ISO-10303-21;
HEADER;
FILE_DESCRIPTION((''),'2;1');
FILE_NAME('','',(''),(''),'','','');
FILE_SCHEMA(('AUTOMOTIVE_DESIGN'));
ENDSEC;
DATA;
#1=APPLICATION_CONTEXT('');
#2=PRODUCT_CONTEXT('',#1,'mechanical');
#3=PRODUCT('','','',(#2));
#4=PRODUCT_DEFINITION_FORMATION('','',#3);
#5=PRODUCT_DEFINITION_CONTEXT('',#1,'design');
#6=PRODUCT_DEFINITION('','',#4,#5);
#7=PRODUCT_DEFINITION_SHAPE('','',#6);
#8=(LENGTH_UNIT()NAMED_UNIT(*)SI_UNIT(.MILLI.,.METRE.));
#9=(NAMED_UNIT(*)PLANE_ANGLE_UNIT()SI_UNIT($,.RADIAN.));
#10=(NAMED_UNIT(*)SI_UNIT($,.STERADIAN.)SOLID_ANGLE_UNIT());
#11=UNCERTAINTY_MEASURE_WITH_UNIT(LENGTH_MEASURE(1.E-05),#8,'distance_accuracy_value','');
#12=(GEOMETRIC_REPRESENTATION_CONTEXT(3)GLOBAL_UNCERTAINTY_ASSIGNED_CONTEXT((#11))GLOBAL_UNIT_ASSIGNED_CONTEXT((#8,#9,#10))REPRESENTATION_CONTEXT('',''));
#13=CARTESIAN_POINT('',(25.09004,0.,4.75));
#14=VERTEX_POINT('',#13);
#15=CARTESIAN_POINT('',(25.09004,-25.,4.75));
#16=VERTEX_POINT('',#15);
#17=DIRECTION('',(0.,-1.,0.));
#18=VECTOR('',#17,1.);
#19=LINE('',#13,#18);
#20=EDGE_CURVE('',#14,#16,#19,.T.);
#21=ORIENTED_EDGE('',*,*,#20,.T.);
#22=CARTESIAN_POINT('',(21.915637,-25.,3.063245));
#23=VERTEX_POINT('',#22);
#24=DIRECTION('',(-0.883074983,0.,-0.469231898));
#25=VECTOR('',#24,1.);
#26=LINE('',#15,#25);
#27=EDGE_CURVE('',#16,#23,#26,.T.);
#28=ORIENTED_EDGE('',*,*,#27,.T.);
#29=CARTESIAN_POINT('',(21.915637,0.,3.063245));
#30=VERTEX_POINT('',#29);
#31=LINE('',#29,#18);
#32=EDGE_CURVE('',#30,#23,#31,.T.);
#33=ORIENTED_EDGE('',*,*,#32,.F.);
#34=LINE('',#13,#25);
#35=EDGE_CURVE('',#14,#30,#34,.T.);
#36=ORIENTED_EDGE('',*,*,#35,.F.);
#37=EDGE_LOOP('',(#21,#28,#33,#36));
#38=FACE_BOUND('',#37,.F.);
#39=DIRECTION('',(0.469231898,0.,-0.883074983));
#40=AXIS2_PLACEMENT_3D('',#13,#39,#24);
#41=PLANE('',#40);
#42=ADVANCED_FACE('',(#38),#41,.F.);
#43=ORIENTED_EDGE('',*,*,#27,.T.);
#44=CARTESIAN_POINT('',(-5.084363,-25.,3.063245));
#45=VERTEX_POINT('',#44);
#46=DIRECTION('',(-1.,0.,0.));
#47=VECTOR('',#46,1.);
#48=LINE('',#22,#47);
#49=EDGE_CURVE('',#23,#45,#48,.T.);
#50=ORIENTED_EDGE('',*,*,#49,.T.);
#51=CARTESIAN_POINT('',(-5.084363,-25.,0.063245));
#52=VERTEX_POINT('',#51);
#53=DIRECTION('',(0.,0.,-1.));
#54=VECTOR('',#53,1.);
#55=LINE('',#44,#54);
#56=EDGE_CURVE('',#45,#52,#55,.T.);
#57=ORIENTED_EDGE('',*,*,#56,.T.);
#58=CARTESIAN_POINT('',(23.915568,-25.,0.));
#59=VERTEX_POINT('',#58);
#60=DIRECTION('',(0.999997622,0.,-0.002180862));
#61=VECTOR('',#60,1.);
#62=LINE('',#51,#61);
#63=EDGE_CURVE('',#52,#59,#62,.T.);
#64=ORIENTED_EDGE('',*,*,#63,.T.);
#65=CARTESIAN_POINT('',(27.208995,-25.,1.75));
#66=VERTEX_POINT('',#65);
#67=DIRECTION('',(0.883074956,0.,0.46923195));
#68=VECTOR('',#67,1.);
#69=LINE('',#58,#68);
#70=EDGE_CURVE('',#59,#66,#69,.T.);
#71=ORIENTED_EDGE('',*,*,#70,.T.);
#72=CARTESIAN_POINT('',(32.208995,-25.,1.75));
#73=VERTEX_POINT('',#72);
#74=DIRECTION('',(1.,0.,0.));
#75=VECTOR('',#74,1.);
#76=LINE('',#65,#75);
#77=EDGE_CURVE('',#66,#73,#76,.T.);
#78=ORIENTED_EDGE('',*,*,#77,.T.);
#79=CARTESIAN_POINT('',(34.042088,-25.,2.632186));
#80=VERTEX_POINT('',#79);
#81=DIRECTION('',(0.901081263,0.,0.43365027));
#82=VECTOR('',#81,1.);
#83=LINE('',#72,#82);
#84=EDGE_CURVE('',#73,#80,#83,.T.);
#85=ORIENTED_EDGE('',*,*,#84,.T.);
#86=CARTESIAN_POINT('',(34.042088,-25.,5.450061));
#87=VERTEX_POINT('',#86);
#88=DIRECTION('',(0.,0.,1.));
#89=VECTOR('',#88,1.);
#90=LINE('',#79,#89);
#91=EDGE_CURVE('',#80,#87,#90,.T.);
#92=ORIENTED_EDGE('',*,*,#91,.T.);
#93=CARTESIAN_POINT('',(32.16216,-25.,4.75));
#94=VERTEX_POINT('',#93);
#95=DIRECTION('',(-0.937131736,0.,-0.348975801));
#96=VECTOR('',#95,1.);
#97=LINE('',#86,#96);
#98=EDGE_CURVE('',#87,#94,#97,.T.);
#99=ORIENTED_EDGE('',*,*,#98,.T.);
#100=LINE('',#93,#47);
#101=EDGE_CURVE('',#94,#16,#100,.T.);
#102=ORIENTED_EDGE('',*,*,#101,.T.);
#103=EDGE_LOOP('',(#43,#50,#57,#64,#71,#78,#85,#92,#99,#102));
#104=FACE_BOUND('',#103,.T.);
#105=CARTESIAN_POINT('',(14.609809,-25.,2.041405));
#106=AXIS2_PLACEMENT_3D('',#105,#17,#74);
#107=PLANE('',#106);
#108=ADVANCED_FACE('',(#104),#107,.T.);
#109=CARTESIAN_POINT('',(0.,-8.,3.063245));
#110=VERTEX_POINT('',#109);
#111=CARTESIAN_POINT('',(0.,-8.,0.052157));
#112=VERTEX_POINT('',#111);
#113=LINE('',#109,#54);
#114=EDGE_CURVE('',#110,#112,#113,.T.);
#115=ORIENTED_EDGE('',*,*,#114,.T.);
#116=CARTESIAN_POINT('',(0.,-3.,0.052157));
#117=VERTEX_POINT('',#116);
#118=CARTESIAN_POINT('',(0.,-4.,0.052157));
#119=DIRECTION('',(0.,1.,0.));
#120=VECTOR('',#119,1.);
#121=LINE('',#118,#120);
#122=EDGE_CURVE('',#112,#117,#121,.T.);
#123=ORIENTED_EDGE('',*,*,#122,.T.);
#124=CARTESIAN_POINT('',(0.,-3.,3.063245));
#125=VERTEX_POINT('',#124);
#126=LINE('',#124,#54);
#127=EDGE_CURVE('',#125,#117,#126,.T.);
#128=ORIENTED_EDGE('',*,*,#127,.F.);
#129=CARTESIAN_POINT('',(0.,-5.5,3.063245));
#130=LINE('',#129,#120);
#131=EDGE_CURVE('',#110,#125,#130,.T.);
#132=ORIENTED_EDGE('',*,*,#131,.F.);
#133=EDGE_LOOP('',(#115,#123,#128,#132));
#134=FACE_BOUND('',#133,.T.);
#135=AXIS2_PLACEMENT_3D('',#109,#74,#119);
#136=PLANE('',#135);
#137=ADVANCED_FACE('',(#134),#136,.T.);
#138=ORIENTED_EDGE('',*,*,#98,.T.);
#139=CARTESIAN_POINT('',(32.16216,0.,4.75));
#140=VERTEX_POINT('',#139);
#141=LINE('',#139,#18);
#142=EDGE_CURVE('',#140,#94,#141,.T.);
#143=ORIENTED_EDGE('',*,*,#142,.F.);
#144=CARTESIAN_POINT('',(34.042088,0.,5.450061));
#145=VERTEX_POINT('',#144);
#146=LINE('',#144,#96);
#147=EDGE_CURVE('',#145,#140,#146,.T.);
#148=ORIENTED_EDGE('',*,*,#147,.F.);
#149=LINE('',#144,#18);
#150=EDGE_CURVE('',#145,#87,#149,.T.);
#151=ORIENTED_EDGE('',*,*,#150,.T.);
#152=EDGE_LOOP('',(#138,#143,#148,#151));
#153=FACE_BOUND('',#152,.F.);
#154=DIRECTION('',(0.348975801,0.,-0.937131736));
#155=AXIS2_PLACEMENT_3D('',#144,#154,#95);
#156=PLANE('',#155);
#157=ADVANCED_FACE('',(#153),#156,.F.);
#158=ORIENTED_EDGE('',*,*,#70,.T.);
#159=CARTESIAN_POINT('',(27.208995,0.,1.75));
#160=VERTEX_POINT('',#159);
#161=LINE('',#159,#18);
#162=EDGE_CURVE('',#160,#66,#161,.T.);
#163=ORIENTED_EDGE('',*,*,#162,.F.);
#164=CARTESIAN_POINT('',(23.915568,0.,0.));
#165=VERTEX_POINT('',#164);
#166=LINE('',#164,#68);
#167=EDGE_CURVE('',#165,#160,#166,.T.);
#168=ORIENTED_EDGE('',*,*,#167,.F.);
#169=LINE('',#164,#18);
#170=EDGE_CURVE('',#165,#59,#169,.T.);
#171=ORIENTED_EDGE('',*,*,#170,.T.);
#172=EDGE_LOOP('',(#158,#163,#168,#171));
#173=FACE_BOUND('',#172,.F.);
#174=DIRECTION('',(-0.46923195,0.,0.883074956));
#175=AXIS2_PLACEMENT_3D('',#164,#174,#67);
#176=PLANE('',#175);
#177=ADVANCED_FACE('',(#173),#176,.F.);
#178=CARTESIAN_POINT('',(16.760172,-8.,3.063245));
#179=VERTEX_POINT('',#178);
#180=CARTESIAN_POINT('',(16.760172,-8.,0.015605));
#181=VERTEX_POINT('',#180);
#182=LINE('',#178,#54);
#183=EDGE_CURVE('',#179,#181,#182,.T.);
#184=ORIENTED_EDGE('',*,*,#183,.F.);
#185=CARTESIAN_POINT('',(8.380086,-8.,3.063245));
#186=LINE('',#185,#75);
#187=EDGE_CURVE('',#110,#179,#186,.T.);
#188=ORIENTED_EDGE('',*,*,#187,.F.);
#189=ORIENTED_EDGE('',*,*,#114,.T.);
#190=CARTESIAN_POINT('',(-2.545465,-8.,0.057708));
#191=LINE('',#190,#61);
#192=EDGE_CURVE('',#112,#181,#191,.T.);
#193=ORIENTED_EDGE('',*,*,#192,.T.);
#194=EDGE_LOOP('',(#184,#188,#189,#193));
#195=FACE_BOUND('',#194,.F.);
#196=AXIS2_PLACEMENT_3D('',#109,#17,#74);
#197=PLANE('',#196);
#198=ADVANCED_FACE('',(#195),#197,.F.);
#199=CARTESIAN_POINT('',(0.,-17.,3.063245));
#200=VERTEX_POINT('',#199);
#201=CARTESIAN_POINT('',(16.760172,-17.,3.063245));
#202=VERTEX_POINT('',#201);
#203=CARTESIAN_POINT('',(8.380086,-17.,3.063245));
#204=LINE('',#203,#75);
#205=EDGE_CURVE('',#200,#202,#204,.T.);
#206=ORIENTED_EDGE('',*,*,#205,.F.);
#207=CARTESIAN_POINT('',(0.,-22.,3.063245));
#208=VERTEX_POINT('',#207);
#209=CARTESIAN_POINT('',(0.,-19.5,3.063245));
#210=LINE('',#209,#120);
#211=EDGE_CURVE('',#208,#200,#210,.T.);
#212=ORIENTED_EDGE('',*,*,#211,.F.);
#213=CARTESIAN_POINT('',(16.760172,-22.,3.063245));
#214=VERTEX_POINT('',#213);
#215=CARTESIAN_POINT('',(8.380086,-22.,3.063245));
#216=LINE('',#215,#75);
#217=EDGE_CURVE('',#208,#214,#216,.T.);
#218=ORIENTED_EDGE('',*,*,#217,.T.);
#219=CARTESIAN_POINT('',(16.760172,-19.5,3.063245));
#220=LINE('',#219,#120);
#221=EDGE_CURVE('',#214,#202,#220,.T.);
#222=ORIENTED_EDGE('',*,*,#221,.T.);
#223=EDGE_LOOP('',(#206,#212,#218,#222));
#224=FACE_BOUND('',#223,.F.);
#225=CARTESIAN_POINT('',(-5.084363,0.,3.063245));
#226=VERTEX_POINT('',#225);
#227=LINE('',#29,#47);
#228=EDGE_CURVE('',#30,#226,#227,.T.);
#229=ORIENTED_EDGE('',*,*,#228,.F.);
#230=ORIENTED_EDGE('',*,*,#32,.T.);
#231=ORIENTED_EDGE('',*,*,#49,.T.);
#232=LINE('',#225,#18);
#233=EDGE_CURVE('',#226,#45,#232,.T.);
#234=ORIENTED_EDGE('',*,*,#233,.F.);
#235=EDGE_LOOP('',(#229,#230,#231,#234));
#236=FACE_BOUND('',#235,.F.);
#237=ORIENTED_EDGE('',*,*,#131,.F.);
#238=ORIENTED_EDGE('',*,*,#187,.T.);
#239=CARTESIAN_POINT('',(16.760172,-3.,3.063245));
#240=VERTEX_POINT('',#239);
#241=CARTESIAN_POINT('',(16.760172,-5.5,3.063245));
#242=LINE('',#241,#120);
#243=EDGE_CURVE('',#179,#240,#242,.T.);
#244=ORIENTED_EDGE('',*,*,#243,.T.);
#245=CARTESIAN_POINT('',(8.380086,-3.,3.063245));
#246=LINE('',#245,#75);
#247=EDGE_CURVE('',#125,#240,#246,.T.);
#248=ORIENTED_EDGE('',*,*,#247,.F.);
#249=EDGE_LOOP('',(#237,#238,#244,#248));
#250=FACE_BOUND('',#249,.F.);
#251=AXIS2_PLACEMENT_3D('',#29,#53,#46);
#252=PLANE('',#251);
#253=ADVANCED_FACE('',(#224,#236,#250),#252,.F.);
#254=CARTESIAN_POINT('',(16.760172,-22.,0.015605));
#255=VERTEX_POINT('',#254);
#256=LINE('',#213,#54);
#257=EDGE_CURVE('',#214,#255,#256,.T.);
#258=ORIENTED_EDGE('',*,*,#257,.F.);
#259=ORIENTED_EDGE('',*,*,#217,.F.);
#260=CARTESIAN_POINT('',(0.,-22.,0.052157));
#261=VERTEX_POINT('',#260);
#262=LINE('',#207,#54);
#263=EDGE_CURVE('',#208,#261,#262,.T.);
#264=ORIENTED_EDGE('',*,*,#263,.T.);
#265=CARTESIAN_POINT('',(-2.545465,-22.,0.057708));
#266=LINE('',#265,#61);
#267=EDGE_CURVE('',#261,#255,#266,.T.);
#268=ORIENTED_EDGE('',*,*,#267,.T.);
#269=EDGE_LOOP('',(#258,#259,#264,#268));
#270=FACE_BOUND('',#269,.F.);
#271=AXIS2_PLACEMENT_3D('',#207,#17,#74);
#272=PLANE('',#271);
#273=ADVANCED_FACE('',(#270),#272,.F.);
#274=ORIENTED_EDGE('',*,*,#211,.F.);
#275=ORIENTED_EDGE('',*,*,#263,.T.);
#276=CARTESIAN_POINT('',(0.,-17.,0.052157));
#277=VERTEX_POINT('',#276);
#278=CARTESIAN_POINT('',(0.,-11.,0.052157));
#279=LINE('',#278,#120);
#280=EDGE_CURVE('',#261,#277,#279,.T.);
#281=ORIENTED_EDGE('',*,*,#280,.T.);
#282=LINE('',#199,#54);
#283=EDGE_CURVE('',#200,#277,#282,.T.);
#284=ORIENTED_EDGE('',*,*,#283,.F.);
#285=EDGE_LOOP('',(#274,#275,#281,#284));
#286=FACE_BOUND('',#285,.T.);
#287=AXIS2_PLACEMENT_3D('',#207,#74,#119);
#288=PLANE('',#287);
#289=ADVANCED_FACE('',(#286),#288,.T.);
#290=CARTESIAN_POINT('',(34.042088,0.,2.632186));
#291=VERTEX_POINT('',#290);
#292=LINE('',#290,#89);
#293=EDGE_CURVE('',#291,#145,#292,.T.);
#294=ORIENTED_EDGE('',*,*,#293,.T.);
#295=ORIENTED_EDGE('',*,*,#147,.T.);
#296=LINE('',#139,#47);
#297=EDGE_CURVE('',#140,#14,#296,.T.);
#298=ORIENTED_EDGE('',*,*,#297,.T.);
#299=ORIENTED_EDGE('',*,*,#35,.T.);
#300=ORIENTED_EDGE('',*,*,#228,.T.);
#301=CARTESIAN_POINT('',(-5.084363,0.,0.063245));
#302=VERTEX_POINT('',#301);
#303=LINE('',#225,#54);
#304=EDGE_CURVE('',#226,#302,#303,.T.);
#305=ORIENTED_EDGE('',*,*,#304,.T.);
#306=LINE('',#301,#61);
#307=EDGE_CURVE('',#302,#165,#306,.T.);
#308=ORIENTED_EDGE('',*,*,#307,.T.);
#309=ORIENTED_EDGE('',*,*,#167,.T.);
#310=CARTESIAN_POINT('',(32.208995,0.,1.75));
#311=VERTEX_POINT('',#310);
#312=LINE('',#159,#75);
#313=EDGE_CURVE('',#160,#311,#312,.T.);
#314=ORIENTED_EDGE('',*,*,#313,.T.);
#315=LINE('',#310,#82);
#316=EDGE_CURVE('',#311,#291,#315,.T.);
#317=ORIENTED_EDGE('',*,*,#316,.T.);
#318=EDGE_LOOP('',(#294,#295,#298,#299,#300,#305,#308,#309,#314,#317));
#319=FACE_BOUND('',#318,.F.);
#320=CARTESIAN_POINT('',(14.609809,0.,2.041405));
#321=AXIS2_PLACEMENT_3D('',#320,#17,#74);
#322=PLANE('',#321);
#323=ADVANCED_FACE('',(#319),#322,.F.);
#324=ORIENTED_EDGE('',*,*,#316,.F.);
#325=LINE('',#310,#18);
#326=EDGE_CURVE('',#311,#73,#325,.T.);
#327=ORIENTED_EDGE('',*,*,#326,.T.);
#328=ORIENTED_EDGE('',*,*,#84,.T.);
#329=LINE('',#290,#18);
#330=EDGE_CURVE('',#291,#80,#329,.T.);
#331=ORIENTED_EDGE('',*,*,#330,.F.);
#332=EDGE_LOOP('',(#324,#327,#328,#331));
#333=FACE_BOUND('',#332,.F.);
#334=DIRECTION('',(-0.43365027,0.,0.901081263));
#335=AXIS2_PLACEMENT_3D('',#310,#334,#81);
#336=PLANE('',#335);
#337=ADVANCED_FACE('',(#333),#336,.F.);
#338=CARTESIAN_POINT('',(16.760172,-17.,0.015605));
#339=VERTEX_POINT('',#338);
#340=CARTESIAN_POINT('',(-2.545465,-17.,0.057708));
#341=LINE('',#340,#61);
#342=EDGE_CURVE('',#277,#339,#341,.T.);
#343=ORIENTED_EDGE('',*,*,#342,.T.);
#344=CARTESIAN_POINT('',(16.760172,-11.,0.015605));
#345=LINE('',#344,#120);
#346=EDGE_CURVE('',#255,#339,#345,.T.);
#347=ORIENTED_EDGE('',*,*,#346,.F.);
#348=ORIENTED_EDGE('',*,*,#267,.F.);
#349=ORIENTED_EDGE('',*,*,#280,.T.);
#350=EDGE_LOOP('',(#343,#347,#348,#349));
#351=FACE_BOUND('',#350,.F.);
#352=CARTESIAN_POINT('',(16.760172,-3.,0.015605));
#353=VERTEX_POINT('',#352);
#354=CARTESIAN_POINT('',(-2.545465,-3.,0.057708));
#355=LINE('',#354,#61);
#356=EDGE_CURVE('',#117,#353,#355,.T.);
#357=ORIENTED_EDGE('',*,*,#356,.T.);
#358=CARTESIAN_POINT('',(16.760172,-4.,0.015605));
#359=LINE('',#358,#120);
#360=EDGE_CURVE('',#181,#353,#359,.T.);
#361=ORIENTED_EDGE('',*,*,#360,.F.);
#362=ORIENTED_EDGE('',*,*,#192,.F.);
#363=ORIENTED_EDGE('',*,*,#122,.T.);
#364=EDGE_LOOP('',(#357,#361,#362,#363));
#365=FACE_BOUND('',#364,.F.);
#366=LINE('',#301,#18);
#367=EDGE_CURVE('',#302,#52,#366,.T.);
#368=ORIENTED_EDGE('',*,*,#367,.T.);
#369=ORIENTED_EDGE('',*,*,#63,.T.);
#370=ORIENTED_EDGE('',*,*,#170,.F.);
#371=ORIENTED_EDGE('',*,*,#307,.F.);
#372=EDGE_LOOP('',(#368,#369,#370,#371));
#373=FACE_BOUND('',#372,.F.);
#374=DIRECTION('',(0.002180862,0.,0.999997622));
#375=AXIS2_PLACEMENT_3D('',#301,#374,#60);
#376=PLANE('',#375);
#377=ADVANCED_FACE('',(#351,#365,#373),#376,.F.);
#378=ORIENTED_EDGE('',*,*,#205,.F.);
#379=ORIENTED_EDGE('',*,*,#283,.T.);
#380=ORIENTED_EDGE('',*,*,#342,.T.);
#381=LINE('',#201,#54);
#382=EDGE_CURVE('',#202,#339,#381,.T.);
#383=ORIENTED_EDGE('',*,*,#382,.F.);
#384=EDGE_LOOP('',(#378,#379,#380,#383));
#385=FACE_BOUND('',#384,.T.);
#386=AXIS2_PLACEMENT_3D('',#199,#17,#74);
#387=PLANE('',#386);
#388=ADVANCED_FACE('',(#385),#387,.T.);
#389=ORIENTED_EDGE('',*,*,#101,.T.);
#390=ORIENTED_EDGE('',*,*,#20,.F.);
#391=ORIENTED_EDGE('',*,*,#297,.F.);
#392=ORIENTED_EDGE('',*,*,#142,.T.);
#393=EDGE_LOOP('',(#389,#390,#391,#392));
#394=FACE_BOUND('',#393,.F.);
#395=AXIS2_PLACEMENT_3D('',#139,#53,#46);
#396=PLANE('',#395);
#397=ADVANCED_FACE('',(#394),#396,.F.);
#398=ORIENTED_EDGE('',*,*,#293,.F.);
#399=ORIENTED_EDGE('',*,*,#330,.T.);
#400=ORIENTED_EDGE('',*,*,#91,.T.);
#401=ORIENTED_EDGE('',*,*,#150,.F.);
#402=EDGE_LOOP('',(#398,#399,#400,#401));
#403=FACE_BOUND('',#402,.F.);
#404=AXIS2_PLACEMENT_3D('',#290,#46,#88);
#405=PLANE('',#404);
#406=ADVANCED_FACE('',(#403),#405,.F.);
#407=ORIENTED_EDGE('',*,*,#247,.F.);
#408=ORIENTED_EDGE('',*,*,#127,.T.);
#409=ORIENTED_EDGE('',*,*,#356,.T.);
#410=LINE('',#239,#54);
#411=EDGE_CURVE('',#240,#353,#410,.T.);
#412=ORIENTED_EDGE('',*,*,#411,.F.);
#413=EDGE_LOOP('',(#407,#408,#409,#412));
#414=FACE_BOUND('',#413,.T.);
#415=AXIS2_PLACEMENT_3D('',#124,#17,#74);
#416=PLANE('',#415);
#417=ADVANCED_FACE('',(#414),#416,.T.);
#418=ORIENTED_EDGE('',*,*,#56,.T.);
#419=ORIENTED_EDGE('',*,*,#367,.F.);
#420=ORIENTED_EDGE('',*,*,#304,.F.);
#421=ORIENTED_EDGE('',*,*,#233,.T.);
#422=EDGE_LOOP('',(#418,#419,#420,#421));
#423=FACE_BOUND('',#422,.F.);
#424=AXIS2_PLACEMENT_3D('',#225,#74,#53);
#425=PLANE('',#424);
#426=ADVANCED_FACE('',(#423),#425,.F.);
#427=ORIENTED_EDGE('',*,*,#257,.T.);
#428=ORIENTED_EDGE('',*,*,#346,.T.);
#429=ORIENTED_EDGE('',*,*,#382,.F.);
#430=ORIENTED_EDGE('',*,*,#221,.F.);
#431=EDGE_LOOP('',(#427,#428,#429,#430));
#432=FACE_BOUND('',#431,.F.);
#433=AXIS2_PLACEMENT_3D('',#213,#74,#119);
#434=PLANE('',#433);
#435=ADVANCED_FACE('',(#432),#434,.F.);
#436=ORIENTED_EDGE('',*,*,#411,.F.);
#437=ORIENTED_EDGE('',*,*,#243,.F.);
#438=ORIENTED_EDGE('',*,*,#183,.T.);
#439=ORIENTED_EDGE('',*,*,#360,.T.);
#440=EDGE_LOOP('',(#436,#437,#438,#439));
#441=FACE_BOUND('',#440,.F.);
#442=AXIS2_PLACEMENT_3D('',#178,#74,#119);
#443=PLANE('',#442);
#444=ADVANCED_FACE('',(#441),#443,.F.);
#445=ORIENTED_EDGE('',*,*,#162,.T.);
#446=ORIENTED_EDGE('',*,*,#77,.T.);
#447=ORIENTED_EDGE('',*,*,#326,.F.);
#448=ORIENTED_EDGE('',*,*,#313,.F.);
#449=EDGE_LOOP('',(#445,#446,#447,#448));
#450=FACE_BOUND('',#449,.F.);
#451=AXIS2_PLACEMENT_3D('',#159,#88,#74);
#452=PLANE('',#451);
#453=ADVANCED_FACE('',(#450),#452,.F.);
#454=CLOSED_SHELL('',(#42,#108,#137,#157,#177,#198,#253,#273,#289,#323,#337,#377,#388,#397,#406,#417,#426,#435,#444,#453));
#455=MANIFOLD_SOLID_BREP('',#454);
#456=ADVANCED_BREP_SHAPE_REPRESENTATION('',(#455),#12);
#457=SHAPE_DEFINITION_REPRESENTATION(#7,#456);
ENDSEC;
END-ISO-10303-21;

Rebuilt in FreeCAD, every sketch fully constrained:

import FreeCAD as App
import Part
import Sketcher

V = App.Vector
Q = App.Units.Quantity

doc = App.newDocument("Part")
body = doc.addObject("PartDesign::Body", "Body")

# Sketch on XZ plane
sketch1 = doc.addObject("Sketcher::SketchObject", "Sketch")
body.addObject(sketch1)
sketch1.AttachmentSupport = (doc.XZ_Plane, [""])
sketch1.MapMode = "FlatFace"
sketch1.addGeometry([
    Part.LineSegment(V(21.9, 3.1, 0), V(-5.1, 3.1, 0)),  # 0
    Part.LineSegment(V(-5.1, 3.1, 0), V(-5.1, 0.1, 0)),  # 1
    Part.LineSegment(V(-5.1, 0.1, 0), V(23.9, 0, 0)),  # 2
    Part.LineSegment(V(23.9, 0, 0), V(27.2, 1.8, 0)),  # 3
    Part.LineSegment(V(27.2, 1.8, 0), V(32.2, 1.8, 0)),  # 4
    Part.LineSegment(V(32.2, 1.8, 0), V(34, 2.6, 0)),  # 5
    Part.LineSegment(V(34, 2.6, 0), V(34, 5.5, 0)),  # 6
    Part.LineSegment(V(34, 5.5, 0), V(32.2, 4.8, 0)),  # 7
    Part.LineSegment(V(32.2, 4.8, 0), V(25.1, 4.8, 0)),  # 8
    Part.LineSegment(V(25.1, 4.8, 0), V(21.9, 3.1, 0)),  # 9
], False)
sketch1.addConstraint([
    Sketcher.Constraint("Coincident", 0, 2, 1, 1),
    Sketcher.Constraint("Coincident", 1, 2, 2, 1),
    Sketcher.Constraint("Coincident", 2, 2, 3, 1),
    Sketcher.Constraint("Coincident", 3, 2, 4, 1),
    Sketcher.Constraint("Coincident", 4, 2, 5, 1),
    Sketcher.Constraint("Coincident", 5, 2, 6, 1),
    Sketcher.Constraint("Coincident", 6, 2, 7, 1),
    Sketcher.Constraint("Coincident", 7, 2, 8, 1),
    Sketcher.Constraint("Coincident", 8, 2, 9, 1),
    Sketcher.Constraint("Coincident", 9, 2, 0, 1),
    Sketcher.Constraint("Horizontal", 0),
    Sketcher.Constraint("Vertical", 1),
    Sketcher.Constraint("Horizontal", 4),
    Sketcher.Constraint("Vertical", 6),
    Sketcher.Constraint("Horizontal", 8),
    Sketcher.Constraint("PointOnObject", 2, 2, -1),
    Sketcher.Constraint("Parallel", 3, 9),
    Sketcher.Constraint("DistanceX", 0, 2, 0, 1, Q("27 mm")),
    Sketcher.Constraint("DistanceX", 4, 1, 4, 2, Q("5 mm")),
    Sketcher.Constraint("DistanceY", 1, 2, 1, 1, Q("3 mm")),
    Sketcher.Constraint("Distance", 2, Q("29 mm")),
    Sketcher.Constraint("DistanceY", 4, 2, 7, 2, Q("3 mm")),
    Sketcher.Constraint("DistanceY", -1, 1, 3, 2, Q("1.75 mm")),
    Sketcher.Constraint("Distance", 3, Q("3.729499 mm")),
    Sketcher.Constraint("DistanceX", 8, 2, 8, 1, Q("7.07212 mm")),
    Sketcher.Constraint("DistanceY", 6, 1, 6, 2, Q("2.817875 mm")),
    Sketcher.Constraint("DistanceX", -1, 1, 2, 2, Q("23.915568 mm")),
    Sketcher.Constraint("DistanceY", -1, 1, 6, 2, Q("5.450061 mm")),
    Sketcher.Constraint("DistanceX", -1, 1, 7, 2, Q("32.16216 mm")),
    Sketcher.Constraint("DistanceX", 2, 2, 5, 2, Q("10.12652 mm")),
])
pad1 = doc.addObject("PartDesign::Pad", "Pad")
body.addObject(pad1)
pad1.Profile = sketch1
pad1.Length = 25

# Sketch on XY plane
sketch2 = doc.addObject("Sketcher::SketchObject", "Sketch001")
body.addObject(sketch2)
sketch2.AttachmentSupport = (doc.XY_Plane, [""])
sketch2.MapMode = "FlatFace"
sketch2.AttachmentOffset = App.Placement(V(0, 0, 3.063245), App.Rotation())
sketch2.addGeometry([
    Part.LineSegment(V(0, -3, 0), V(0, -8, 0)),  # 0
    Part.LineSegment(V(0, -8, 0), V(17, -8, 0)),  # 1
    Part.LineSegment(V(17, -8, 0), V(17, -3, 0)),  # 2
    Part.LineSegment(V(17, -3, 0), V(0, -3, 0)),  # 3
    Part.LineSegment(V(0, -17, 0), V(0, -22, 0)),  # 4
    Part.LineSegment(V(0, -22, 0), V(17, -22, 0)),  # 5
    Part.LineSegment(V(17, -22, 0), V(17, -17, 0)),  # 6
    Part.LineSegment(V(17, -17, 0), V(0, -17, 0)),  # 7
], False)
sketch2.addConstraint([
    Sketcher.Constraint("Coincident", 0, 2, 1, 1),
    Sketcher.Constraint("Coincident", 1, 2, 2, 1),
    Sketcher.Constraint("Coincident", 2, 2, 3, 1),
    Sketcher.Constraint("Coincident", 3, 2, 0, 1),
    Sketcher.Constraint("Coincident", 4, 2, 5, 1),
    Sketcher.Constraint("Coincident", 5, 2, 6, 1),
    Sketcher.Constraint("Coincident", 6, 2, 7, 1),
    Sketcher.Constraint("Coincident", 7, 2, 4, 1),
    Sketcher.Constraint("Vertical", 0),
    Sketcher.Constraint("Horizontal", 1),
    Sketcher.Constraint("Vertical", 2),
    Sketcher.Constraint("Horizontal", 3),
    Sketcher.Constraint("Vertical", 4),
    Sketcher.Constraint("Horizontal", 5),
    Sketcher.Constraint("Vertical", 6),
    Sketcher.Constraint("Horizontal", 7),
    Sketcher.Constraint("PointOnObject", 0, 2, -2),
    Sketcher.Constraint("PointOnObject", 4, 2, -2),
    Sketcher.Constraint("Vertical", 2, 2, 5, 2),
    Sketcher.Constraint("Equal", 2, 4),
    Sketcher.Constraint("DistanceY", 0, 2, 0, 1, Q("5 mm")),
    Sketcher.Constraint("DistanceY", 0, 2, -1, 1, Q("8 mm")),
    Sketcher.Constraint("DistanceY", 4, 2, -1, 1, Q("22 mm")),
    Sketcher.Constraint("DistanceX", 1, 1, 1, 2, Q("16.760172 mm")),
])
pocket1 = doc.addObject("PartDesign::Pocket", "Pocket")
body.addObject(pocket1)
pocket1.Profile = sketch2
pocket1.Length = 25

doc.recompute()
